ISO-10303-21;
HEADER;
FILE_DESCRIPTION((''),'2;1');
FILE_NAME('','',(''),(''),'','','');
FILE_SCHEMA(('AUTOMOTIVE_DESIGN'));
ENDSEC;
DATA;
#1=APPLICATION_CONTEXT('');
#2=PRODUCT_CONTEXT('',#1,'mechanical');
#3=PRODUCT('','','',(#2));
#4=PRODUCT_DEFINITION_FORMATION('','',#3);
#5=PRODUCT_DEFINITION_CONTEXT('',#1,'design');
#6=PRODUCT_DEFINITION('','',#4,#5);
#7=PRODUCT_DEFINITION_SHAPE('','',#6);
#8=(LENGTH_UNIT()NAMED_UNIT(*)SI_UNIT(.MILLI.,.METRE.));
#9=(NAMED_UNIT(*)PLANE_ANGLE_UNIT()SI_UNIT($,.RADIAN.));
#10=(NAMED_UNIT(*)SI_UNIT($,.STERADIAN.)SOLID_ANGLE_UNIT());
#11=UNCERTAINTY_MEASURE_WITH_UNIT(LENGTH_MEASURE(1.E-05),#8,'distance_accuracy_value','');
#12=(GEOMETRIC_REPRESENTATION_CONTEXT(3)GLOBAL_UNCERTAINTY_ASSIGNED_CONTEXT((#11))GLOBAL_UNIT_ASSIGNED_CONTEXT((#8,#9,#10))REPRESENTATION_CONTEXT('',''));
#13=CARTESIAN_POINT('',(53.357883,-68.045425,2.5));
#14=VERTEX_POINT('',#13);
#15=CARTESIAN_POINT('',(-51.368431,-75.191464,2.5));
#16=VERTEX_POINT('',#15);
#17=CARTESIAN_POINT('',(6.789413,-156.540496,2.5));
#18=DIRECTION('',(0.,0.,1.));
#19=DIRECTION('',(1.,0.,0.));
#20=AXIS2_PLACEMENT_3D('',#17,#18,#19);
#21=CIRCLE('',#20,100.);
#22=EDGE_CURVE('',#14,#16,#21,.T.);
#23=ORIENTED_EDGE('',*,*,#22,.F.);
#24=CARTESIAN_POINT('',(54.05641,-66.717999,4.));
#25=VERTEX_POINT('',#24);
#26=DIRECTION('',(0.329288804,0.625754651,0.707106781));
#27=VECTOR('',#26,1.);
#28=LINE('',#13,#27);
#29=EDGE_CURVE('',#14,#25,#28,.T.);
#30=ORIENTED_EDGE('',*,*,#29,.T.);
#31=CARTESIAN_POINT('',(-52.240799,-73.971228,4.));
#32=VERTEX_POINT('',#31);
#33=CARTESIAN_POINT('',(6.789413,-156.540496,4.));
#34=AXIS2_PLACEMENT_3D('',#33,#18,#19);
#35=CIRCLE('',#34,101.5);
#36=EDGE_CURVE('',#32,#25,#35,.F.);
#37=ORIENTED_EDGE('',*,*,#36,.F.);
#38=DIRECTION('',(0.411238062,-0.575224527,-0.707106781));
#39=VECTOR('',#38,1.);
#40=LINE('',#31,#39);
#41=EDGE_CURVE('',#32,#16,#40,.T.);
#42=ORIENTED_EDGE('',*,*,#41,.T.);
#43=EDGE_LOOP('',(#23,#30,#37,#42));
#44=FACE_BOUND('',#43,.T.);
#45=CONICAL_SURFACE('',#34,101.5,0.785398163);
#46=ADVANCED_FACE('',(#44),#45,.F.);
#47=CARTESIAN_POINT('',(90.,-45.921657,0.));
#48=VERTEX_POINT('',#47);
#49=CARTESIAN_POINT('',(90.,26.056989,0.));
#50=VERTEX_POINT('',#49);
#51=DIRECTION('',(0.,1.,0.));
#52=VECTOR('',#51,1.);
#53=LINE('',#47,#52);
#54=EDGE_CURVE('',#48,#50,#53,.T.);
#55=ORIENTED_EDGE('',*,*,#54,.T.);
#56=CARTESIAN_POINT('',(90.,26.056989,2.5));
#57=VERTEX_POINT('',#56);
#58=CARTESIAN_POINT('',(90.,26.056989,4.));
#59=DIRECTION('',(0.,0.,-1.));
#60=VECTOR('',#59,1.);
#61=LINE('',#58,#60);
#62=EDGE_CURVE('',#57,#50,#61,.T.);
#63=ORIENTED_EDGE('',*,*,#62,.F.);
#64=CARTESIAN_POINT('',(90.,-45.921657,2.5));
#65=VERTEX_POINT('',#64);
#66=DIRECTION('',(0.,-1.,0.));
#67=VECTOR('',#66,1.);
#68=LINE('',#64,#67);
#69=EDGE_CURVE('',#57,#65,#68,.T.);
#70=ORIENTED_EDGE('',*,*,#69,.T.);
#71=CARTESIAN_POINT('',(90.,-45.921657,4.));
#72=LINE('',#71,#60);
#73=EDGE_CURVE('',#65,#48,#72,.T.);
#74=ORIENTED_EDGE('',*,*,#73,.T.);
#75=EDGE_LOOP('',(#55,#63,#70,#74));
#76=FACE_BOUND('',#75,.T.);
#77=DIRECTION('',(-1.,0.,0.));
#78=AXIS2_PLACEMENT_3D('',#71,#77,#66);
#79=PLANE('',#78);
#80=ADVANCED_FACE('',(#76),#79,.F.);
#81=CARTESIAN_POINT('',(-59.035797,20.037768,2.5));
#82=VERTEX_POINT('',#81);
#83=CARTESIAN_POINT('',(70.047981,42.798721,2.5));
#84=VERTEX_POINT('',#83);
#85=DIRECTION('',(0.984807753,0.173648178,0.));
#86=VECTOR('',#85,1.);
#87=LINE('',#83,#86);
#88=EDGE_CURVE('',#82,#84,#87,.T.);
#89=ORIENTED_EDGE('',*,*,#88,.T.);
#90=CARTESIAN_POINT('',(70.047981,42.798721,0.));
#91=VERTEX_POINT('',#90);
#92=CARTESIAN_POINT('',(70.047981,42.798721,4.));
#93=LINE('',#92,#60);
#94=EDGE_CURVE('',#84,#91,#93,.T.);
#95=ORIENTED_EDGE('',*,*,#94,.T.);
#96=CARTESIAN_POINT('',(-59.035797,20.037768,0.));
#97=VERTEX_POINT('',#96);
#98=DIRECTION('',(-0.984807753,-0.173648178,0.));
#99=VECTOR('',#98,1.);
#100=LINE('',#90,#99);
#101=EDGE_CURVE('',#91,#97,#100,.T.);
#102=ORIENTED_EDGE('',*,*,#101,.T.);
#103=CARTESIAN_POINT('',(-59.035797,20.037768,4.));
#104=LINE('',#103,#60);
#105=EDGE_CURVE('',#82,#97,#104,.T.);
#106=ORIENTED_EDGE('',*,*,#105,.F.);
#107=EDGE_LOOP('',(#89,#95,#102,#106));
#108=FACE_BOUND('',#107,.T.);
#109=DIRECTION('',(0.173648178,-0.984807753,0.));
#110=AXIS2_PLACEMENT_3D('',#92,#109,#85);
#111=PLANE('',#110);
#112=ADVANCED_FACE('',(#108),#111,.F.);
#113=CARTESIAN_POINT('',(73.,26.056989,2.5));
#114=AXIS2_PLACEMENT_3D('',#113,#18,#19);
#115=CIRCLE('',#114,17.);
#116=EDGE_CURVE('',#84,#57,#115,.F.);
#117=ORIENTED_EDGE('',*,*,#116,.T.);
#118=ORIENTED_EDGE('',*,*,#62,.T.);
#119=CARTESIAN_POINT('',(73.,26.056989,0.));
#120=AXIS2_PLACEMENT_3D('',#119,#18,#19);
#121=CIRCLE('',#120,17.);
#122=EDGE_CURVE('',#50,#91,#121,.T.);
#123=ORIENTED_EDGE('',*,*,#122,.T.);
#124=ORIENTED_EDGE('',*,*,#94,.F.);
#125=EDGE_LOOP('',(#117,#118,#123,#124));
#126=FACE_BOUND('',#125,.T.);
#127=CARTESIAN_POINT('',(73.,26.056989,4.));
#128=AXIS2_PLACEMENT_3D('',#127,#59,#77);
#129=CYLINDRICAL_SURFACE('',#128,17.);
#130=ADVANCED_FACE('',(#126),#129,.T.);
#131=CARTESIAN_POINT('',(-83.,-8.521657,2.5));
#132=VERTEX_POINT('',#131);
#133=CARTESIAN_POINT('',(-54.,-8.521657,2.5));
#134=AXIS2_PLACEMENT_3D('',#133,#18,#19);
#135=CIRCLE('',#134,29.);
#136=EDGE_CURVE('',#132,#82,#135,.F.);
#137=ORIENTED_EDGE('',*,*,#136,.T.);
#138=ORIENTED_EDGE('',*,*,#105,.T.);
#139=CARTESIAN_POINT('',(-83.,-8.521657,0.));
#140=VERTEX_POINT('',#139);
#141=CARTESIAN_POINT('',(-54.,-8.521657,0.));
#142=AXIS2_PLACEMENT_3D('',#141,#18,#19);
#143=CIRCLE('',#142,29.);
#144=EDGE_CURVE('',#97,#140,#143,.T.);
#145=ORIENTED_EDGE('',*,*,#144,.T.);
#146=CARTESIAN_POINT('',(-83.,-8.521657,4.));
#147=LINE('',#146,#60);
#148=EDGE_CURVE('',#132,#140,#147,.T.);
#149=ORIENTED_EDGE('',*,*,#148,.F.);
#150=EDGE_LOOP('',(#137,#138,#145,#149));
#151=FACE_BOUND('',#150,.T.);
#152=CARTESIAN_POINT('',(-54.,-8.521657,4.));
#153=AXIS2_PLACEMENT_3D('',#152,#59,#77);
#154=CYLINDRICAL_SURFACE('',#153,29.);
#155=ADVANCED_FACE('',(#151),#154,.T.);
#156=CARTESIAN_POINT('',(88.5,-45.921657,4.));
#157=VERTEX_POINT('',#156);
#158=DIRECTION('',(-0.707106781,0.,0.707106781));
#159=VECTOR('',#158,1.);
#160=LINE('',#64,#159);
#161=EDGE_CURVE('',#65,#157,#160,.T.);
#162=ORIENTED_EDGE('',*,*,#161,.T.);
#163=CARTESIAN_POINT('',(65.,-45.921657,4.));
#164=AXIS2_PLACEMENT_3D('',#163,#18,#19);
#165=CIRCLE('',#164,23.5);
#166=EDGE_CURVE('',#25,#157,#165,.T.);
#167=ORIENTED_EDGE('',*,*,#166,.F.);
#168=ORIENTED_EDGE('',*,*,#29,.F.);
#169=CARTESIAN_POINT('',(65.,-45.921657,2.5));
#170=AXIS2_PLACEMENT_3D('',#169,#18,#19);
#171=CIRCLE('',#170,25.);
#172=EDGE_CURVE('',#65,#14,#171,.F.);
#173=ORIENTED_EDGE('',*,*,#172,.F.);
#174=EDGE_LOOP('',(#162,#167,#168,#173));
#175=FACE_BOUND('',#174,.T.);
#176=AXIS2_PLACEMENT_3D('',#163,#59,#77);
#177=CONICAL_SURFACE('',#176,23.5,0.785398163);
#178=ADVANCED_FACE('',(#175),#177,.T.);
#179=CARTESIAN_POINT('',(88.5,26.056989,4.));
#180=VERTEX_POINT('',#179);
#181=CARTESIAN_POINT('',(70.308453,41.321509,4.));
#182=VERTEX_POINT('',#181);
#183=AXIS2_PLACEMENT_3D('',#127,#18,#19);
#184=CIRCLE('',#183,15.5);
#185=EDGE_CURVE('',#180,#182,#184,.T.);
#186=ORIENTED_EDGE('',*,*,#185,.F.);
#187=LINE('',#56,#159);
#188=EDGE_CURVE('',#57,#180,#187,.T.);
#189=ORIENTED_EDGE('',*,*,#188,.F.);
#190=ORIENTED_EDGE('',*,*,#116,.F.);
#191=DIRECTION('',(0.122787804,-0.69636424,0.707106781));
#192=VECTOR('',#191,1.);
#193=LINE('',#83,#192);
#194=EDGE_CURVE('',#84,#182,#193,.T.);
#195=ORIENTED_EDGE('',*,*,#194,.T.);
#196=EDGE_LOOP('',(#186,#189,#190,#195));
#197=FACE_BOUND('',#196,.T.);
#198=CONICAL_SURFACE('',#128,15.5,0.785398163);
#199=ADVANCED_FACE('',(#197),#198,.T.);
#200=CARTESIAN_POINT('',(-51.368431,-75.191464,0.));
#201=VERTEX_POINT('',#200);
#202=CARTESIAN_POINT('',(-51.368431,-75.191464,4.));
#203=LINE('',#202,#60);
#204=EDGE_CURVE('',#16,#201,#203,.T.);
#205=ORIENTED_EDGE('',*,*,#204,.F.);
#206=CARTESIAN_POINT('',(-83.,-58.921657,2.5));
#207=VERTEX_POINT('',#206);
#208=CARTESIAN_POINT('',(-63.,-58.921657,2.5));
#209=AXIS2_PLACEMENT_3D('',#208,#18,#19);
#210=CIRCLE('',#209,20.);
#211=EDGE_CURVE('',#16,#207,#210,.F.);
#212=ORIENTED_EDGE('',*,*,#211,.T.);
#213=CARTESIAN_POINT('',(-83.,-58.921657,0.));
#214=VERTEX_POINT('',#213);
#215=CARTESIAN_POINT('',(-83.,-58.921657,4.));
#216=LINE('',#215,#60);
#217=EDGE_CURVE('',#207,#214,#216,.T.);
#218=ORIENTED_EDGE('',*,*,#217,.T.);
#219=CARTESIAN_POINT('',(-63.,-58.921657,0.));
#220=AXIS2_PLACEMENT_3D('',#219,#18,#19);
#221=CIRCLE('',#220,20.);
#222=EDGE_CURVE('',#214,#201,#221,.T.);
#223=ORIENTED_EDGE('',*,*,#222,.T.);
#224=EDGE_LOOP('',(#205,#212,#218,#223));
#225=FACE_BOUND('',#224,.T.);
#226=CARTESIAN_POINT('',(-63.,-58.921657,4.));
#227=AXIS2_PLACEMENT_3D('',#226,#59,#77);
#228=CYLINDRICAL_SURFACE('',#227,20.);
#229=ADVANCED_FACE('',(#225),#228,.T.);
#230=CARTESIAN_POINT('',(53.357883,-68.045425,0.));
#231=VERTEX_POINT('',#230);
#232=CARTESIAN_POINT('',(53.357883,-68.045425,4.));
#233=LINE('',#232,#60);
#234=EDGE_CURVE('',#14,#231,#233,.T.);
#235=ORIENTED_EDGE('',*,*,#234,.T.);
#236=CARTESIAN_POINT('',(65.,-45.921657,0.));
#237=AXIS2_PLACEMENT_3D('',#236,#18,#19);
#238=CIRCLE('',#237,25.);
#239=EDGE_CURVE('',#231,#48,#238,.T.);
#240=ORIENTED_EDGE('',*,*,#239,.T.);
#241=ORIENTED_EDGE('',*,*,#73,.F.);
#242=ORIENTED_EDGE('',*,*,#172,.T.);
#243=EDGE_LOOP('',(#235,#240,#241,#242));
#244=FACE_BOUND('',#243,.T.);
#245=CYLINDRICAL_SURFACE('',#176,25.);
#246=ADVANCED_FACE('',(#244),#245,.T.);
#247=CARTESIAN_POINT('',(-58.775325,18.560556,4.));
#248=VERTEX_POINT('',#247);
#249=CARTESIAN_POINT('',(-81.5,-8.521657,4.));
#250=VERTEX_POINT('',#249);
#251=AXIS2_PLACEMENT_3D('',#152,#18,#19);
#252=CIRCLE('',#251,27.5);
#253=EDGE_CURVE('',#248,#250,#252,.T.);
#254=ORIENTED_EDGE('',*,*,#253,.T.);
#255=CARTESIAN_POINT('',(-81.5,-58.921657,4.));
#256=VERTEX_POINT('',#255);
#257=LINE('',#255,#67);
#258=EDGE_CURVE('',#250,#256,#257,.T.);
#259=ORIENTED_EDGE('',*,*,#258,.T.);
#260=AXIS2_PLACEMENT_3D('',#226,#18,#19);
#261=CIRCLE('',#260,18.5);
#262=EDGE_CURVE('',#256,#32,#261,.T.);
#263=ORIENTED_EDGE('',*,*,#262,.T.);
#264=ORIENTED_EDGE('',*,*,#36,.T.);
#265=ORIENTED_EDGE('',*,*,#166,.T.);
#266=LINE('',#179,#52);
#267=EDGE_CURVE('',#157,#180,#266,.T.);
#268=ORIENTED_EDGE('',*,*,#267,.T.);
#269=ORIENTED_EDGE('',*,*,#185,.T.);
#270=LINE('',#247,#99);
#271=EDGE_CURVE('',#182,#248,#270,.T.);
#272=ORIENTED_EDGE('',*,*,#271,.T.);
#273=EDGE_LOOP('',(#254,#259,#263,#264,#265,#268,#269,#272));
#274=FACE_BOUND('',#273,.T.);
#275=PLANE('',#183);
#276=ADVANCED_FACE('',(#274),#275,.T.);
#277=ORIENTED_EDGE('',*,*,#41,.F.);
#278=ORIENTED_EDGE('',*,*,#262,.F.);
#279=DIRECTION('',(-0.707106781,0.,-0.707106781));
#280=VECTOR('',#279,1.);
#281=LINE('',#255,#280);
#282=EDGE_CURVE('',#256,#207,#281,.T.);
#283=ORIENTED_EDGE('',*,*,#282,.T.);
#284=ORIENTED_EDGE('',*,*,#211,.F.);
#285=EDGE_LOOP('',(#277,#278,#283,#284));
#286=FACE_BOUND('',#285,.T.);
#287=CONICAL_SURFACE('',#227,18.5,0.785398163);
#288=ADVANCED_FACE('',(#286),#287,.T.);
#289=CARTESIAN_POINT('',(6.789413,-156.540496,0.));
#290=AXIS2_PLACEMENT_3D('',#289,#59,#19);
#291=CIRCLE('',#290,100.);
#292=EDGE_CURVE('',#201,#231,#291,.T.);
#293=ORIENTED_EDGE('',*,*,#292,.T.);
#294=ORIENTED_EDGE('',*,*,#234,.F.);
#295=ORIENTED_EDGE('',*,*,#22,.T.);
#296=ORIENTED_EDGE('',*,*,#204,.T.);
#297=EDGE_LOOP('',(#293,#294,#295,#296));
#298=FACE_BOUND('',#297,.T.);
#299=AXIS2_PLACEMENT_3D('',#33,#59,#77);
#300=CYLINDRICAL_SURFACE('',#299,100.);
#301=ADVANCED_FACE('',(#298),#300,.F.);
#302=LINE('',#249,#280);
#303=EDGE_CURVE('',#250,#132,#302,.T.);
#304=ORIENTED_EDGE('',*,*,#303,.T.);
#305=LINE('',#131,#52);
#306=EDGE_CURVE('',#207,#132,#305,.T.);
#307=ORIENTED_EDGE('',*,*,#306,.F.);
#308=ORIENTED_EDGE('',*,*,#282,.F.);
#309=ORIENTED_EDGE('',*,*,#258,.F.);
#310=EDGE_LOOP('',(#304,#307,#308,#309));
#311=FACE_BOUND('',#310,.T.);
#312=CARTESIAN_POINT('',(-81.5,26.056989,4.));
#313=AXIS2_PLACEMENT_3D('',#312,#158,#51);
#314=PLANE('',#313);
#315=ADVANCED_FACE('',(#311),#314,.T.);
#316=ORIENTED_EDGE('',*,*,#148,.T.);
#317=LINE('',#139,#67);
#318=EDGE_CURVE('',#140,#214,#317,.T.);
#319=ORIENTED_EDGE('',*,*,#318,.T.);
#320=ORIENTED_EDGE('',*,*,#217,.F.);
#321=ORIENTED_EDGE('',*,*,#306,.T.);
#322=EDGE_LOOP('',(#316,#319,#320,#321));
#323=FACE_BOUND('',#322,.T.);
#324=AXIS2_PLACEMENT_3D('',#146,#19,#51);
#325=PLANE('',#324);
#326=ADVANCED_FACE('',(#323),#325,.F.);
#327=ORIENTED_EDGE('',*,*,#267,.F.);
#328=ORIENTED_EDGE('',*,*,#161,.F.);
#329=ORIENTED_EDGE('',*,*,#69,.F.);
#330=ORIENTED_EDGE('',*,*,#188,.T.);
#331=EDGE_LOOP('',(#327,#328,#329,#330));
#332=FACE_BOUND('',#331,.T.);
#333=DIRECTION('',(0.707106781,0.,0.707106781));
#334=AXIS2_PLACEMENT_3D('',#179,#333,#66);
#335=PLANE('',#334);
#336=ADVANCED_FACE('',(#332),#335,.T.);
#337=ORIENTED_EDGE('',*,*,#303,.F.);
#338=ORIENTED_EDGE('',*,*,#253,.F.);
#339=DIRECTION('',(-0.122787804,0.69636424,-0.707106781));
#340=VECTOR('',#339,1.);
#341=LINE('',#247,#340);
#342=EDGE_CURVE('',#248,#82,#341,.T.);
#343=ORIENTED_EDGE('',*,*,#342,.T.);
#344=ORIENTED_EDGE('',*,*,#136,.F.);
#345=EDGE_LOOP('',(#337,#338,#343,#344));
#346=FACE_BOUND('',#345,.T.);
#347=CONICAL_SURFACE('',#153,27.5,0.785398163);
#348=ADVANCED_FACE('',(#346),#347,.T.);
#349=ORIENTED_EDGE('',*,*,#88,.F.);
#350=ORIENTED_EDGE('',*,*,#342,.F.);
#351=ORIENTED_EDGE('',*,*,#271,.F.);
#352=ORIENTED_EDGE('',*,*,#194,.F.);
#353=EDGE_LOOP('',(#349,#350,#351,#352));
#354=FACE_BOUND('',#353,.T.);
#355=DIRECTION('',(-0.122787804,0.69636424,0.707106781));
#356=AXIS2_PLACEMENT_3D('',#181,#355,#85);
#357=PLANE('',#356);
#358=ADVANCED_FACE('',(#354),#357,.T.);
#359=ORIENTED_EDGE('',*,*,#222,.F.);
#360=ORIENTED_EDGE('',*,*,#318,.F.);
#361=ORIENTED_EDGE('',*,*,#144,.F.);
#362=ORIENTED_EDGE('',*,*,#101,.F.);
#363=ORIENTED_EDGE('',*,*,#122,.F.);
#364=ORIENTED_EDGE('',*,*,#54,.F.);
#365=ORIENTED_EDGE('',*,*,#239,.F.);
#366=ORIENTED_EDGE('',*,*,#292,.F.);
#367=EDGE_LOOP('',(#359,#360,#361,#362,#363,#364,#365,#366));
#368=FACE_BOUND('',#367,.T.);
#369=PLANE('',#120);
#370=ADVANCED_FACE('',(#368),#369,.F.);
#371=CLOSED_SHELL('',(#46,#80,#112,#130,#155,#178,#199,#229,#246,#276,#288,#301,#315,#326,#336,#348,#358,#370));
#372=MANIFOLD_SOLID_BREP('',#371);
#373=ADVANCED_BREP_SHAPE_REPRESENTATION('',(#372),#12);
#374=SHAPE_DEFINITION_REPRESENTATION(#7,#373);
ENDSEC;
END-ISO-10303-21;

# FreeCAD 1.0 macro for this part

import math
import FreeCAD as App
import Part
import Sketcher
from FreeCAD import Vector
Q = App.Units.Quantity


def edges_at(feature, points):
    """Names of the edges that pass closest to the given points."""
    edges = feature.Shape.Edges
    near = lambda p: min(range(len(edges)), key=lambda i: edges[i].distToShape(Part.Vertex(*p))[0])
    return sorted({f"Edge{near(p) + 1}" for p in points})

doc = App.newDocument("Part")
body = doc.addObject("PartDesign::Body", "Body")

# Sketch on XY plane
sketch1 = body.newObject("Sketcher::SketchObject", "Sketch")
sketch1.AttachmentSupport = (doc.getObject("XY_Plane"), [""])
sketch1.MapMode = "FlatFace"
sketch1.addGeometry(Part.LineSegment(Vector(70, 43, 0), Vector(-59, 20, 0)), False)
sketch1.addGeometry(Part.ArcOfCircle(Part.Circle(Vector(-54, -9, 0), Vector(0, 0, 1), 29), math.radians(100), math.radians(180)), False)
sketch1.addGeometry(Part.LineSegment(Vector(-83, -9, 0), Vector(-83, -59, 0)), False)
sketch1.addGeometry(Part.ArcOfCircle(Part.Circle(Vector(-63, -59, 0), Vector(0, 0, 1), 20), math.radians(180), math.radians(306)), False)
sketch1.addGeometry(Part.ArcOfCircle(Part.Circle(Vector(7, -157, 0), Vector(0, 0, 1), 100), math.radians(62), math.radians(126)), False)
sketch1.addGeometry(Part.ArcOfCircle(Part.Circle(Vector(65, -46, 0), Vector(0, 0, 1), 25), math.radians(-118), math.radians(0)), False)
sketch1.addGeometry(Part.LineSegment(Vector(90, -46, 0), Vector(90, 26, 0)), False)
sketch1.addGeometry(Part.ArcOfCircle(Part.Circle(Vector(73, 26, 0), Vector(0, 0, 1), 17), math.radians(0), math.radians(100)), False)
sketch1.addConstraint(Sketcher.Constraint("Tangent", 0, 2, 1, 1))
sketch1.addConstraint(Sketcher.Constraint("Tangent", 1, 2, 2, 1))
sketch1.addConstraint(Sketcher.Constraint("Tangent", 2, 2, 3, 1))
sketch1.addConstraint(Sketcher.Constraint("Tangent", 3, 2, 4, 2))
sketch1.addConstraint(Sketcher.Constraint("Tangent", 4, 1, 5, 1))
sketch1.addConstraint(Sketcher.Constraint("Tangent", 5, 2, 6, 1))
sketch1.addConstraint(Sketcher.Constraint("Tangent", 6, 2, 7, 1))
sketch1.addConstraint(Sketcher.Constraint("Tangent", 7, 2, 0, 1))
sketch1.addConstraint(Sketcher.Constraint("Vertical", 2))
sketch1.addConstraint(Sketcher.Constraint("Vertical", 6))
sketch1.addConstraint(Sketcher.Constraint("Radius", 1, Q("29 mm")))
sketch1.addConstraint(Sketcher.Constraint("Radius", 3, Q("20 mm")))
sketch1.addConstraint(Sketcher.Constraint("Radius", 4, Q("100 mm")))
sketch1.addConstraint(Sketcher.Constraint("Radius", 5, Q("25 mm")))
sketch1.addConstraint(Sketcher.Constraint("Radius", 7, Q("17 mm")))
sketch1.addConstraint(Sketcher.Constraint("Angle", 0, Q("-170 deg")))
sketch1.addConstraint(Sketcher.Constraint("DistanceY", 2, 2, 2, 1, Q("50.4 mm")))
sketch1.addConstraint(Sketcher.Constraint("DistanceX", 1, 3, -1, 1, Q("54 mm")))
sketch1.addConstraint(Sketcher.Constraint("DistanceX", -1, 1, 5, 3, Q("65 mm")))
sketch1.addConstraint(Sketcher.Constraint("DistanceY", 3, 3, 5, 3, Q("13 mm")))
sketch1.addConstraint(Sketcher.Constraint("DistanceY", -1, 1, 7, 3, Q("26.056989 mm")))
pad1 = body.newObject("PartDesign::Pad", "Pad")
pad1.Profile = sketch1
pad1.Length = 4
doc.recompute()

chamfer = body.newObject("PartDesign::Chamfer", "Chamfer")
chamfer.Base = (pad1, edges_at(pad1, [
    (-76.215, 10.119, 4),
    (-83, -33.722, 4),
    (-72.148, -76.707, 4),
    (-0.018, -56.772, 4),
    (77.922, -67.323, 4),
    (90, -9.932, 4),
    (83.927, 39.08, 4),
    (5.506, 31.418, 4),
]))
chamfer.Size = 1.5

doc.recompute()
